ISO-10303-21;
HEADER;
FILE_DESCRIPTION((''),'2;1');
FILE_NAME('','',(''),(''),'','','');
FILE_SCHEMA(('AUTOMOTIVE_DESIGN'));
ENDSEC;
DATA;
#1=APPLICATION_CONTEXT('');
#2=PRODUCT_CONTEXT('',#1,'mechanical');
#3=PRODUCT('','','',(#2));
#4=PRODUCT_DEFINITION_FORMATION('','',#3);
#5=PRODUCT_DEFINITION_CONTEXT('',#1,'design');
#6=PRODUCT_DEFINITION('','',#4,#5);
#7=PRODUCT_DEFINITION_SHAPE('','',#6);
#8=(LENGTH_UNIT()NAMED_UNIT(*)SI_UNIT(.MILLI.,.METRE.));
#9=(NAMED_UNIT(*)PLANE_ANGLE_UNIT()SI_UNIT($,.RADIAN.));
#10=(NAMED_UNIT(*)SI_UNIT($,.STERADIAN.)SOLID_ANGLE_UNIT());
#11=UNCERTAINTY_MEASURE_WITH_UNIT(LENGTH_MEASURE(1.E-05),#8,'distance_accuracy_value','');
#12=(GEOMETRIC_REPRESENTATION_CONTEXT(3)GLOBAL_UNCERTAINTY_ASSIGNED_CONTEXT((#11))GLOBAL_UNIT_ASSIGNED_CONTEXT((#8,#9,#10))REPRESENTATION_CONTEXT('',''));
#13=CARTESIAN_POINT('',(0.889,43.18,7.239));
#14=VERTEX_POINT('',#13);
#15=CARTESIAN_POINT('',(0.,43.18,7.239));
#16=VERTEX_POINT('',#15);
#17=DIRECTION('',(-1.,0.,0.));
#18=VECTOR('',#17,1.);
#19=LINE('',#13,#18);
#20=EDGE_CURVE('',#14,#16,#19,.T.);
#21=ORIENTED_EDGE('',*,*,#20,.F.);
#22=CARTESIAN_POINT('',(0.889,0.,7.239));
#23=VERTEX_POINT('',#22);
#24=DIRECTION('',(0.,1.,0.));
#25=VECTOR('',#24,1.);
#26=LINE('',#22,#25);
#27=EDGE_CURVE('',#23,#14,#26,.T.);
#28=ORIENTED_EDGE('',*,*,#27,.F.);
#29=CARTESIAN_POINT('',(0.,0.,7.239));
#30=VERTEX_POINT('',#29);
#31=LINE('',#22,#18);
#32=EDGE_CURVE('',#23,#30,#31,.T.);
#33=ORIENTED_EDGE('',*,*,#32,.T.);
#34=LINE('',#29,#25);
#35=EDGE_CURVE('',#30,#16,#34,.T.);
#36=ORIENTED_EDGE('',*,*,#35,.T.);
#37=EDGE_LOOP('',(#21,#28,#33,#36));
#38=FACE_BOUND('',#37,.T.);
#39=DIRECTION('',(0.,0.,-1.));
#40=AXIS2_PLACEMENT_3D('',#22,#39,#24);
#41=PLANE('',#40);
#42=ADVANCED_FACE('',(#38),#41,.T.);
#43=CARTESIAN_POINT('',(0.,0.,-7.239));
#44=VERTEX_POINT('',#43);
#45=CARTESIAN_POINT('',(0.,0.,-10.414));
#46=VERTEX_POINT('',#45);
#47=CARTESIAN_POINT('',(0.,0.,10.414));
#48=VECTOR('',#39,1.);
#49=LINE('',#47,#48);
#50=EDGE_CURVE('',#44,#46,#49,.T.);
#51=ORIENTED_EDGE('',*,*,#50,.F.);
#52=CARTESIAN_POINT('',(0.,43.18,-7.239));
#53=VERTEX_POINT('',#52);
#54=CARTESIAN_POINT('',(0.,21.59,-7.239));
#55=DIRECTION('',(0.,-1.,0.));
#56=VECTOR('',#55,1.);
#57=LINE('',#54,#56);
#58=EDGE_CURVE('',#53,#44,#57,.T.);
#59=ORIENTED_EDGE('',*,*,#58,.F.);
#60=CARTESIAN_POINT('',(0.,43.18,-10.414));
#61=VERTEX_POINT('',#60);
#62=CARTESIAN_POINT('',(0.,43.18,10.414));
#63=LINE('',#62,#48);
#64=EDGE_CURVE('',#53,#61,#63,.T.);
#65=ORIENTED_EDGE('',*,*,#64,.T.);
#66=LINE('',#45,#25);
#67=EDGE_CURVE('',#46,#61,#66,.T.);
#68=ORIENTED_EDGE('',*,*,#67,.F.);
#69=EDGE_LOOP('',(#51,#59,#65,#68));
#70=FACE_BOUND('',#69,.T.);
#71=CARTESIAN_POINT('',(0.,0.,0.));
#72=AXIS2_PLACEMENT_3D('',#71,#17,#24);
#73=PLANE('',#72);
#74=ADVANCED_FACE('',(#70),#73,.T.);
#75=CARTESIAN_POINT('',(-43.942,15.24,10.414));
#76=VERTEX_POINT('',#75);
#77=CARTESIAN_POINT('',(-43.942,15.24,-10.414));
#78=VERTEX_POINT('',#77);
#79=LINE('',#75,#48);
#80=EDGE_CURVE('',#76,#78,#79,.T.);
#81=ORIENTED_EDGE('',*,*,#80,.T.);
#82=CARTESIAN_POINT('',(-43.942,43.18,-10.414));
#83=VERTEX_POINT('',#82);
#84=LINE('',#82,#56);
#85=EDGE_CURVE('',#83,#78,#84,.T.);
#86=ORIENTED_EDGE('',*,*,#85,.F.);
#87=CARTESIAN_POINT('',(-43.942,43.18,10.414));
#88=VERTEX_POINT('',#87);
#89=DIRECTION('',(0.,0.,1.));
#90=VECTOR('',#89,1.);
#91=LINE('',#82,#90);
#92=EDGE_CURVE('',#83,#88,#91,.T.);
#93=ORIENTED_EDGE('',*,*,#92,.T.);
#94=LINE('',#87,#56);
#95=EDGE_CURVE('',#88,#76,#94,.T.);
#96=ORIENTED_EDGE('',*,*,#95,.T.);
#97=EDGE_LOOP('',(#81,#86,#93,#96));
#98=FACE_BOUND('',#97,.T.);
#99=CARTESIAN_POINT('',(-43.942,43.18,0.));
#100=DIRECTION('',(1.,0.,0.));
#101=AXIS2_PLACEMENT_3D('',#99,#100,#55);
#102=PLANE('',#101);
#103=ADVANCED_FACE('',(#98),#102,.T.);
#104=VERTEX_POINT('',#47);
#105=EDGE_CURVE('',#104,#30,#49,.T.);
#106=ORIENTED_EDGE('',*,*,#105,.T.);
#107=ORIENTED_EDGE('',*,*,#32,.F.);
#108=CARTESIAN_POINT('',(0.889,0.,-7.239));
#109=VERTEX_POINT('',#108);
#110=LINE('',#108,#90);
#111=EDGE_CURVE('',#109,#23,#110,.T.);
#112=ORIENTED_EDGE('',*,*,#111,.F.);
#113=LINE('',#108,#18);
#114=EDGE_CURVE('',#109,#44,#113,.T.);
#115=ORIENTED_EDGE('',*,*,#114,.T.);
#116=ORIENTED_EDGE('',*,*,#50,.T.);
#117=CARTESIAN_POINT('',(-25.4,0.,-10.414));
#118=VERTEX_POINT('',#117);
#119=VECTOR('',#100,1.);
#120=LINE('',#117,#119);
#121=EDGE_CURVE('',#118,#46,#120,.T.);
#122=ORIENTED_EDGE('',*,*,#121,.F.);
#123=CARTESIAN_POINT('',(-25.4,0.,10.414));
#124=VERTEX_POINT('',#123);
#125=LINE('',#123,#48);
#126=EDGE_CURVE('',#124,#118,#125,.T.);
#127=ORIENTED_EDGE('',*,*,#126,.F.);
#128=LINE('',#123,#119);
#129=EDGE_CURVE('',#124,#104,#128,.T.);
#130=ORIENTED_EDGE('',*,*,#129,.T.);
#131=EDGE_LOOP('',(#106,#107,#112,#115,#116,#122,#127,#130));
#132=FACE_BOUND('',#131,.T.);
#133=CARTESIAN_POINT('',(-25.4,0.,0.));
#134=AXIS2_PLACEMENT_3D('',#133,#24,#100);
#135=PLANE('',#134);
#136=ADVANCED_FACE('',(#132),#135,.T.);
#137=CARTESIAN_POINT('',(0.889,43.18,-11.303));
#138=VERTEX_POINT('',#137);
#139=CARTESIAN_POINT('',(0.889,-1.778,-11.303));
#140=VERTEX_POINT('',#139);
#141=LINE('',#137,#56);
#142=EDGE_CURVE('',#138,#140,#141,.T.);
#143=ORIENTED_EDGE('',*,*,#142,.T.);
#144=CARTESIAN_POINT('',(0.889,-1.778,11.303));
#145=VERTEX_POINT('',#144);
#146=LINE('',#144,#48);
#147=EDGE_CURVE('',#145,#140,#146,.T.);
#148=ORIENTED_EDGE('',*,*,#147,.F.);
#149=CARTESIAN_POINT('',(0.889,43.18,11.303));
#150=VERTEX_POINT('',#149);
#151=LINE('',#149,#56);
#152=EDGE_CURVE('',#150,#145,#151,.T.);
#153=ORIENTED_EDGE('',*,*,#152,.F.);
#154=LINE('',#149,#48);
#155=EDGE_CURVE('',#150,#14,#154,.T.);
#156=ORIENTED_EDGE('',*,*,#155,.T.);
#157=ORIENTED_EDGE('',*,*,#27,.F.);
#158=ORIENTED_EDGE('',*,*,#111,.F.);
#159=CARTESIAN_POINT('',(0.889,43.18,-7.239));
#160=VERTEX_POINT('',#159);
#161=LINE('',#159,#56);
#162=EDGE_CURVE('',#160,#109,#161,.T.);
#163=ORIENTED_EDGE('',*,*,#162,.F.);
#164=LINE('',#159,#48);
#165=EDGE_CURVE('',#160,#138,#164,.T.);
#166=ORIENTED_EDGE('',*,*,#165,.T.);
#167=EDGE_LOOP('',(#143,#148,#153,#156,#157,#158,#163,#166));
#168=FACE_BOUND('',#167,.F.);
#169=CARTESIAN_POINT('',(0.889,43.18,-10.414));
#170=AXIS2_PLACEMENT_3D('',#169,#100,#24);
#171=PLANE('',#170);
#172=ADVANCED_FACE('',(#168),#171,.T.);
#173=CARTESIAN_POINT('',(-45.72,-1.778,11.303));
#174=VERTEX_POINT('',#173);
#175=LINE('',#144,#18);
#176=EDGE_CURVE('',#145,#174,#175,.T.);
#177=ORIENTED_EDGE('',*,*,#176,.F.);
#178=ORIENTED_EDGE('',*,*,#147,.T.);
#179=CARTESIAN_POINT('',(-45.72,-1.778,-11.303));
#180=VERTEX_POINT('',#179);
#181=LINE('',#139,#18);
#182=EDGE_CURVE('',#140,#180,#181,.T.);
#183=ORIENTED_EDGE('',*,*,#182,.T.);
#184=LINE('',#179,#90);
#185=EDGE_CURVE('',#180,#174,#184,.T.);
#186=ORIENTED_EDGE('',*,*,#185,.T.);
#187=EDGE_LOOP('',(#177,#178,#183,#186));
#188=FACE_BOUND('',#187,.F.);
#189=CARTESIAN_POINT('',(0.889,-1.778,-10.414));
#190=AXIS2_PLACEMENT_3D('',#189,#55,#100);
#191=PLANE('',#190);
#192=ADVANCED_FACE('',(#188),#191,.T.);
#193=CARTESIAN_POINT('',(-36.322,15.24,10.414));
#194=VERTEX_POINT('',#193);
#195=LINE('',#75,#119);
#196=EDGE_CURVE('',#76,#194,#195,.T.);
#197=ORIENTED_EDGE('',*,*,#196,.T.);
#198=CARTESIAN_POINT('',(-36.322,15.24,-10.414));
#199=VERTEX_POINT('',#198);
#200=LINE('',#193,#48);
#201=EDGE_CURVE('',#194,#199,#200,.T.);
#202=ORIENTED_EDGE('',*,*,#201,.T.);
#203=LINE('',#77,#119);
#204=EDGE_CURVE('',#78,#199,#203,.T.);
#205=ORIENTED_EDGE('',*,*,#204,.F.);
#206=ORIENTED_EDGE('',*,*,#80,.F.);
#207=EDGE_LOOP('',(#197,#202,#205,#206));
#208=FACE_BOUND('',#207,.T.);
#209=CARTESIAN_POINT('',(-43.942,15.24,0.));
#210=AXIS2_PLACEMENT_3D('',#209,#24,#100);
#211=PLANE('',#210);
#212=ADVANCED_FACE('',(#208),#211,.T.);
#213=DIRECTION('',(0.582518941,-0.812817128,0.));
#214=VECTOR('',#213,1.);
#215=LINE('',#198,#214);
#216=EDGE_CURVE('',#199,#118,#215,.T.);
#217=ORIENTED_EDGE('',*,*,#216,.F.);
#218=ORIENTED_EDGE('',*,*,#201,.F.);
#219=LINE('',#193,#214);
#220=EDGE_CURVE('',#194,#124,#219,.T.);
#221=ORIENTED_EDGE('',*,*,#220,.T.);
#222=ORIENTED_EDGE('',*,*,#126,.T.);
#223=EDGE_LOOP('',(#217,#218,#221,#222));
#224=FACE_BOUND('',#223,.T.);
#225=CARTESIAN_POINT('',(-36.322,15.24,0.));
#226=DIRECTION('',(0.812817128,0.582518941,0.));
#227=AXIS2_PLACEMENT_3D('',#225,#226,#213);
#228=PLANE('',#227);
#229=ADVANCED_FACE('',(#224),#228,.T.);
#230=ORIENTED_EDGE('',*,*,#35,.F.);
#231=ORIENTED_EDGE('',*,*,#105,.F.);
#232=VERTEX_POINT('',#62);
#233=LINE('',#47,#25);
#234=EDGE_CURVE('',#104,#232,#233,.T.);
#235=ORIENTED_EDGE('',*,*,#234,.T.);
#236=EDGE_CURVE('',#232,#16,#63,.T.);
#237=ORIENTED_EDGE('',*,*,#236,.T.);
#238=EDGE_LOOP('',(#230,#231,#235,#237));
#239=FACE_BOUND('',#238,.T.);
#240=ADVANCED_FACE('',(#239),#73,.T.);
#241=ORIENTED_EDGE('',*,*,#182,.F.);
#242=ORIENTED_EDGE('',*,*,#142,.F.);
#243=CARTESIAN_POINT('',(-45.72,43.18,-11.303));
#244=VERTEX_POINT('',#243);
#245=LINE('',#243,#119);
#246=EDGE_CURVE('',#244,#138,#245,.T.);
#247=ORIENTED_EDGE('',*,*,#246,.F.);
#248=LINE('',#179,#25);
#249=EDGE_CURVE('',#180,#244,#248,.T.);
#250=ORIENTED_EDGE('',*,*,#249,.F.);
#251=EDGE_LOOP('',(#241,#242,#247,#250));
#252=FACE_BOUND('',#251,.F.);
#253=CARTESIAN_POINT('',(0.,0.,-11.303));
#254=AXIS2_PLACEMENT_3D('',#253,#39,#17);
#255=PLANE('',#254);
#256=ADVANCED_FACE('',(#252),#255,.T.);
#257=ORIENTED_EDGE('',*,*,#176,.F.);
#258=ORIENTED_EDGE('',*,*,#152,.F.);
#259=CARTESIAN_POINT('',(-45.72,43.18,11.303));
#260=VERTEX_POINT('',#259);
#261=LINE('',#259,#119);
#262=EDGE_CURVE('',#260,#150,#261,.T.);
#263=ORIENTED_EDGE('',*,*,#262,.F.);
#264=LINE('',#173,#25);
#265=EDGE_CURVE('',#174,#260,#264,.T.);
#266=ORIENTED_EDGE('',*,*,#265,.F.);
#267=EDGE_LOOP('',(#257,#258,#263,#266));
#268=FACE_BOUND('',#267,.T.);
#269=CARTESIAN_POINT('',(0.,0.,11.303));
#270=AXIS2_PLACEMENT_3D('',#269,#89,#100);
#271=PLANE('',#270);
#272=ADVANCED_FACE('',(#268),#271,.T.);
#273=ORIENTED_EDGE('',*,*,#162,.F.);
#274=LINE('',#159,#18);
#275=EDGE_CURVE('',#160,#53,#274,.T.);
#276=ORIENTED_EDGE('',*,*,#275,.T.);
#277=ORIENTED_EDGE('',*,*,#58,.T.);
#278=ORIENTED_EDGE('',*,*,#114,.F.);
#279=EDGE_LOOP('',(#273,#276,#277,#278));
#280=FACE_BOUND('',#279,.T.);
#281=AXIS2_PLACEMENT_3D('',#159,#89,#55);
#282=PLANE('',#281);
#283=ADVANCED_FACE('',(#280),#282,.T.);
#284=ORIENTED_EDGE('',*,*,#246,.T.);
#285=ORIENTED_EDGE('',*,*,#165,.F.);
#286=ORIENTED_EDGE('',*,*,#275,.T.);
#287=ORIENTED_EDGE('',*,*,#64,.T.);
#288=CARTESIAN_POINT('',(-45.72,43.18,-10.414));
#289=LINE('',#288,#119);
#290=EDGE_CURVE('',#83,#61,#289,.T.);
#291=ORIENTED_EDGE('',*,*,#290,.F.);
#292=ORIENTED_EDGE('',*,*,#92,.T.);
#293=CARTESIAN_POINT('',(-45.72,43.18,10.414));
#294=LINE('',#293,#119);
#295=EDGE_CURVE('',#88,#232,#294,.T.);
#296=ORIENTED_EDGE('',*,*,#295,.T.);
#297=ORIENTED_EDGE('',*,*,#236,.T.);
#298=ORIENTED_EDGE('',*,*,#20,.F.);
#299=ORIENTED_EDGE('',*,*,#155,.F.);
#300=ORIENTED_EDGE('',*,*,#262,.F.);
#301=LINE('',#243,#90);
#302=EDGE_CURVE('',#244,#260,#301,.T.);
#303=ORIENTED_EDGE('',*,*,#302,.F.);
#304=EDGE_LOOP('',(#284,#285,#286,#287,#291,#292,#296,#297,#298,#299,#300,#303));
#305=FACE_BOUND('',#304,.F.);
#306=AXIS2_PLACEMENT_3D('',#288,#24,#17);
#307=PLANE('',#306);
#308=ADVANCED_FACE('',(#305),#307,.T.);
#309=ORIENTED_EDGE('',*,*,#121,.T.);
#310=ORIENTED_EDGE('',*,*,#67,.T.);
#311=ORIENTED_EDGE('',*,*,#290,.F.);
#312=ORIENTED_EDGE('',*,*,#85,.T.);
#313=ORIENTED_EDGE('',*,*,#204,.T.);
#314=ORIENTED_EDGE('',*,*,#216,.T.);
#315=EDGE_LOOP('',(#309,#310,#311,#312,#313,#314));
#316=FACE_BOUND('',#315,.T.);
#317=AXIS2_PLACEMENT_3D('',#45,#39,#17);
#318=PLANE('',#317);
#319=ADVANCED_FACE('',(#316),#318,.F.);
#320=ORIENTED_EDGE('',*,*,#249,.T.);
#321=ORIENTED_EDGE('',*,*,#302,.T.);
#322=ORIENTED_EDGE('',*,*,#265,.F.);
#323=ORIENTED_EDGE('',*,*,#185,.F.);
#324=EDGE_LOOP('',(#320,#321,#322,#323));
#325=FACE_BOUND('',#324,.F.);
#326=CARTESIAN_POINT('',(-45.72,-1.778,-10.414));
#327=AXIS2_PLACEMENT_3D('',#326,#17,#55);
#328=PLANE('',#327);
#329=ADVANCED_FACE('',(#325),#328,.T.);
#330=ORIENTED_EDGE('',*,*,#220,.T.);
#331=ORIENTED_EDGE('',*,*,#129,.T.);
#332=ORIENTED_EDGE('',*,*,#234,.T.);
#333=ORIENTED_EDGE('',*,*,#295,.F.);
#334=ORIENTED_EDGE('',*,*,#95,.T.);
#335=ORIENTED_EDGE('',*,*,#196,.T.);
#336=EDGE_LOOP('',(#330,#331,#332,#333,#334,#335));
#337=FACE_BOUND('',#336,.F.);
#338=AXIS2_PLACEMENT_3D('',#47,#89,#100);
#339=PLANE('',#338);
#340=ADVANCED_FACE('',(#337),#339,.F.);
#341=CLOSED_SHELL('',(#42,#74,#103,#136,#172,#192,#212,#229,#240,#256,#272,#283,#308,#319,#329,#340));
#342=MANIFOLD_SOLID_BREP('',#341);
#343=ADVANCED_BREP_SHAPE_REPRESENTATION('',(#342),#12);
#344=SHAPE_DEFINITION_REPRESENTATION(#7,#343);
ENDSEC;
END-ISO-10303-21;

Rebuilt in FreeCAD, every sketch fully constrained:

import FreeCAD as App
import Part
import Sketcher

V = App.Vector
Q = App.Units.Quantity

doc = App.newDocument("Part")
params = doc.addObject("Spreadsheet::Sheet", "Params")
for row, (alias, value) in enumerate([
    ("sketch1_width", "0.3 in"),
    ("sketch1_height", "1.1 in"),
    ("sketch1_height2", "1.7 in"),
    ("sketch1_width2", "0.07 in"),
    ("sketch1_height3", "1.77 in"),
    ("pad1_length", "0.82 in"),
    ("sketch2_height", "0.57 in"),
    ("sketch2_width", "1.7 in"),
    ("sketch3_height", "1.77 in"),
    ("sketch3_width", "1.835 in"),
    ("pad2_length", "0.035 in"),
], start=1):
    params.set(f"A{row}", alias)
    params.set(f"B{row}", "=" + value)
    params.setAlias(f"B{row}", alias)

body = doc.addObject("PartDesign::Body", "Body")

# Sketch on XY plane
sketch1 = body.newObject("Sketcher::SketchObject", "Sketch")
sketch1.AttachmentSupport = (doc.getObject("XY_Plane"), [""])
sketch1.MapMode = "FlatFace"
sketch1.addGeometry([
    Part.LineSegment(V(-43.942, 15.24, 0), V(-43.942, 43.18, 0)),  # 0
    Part.LineSegment(V(-43.942, 43.18, 0), V(-45.72, 43.18, 0)),  # 1
    Part.LineSegment(V(-45.72, 43.18, 0), V(-45.72, -1.778, 0)),  # 2
    Part.LineSegment(V(-45.72, -1.778, 0), V(0.889, -1.778, 0)),  # 3
    Part.LineSegment(V(0.889, -1.778, 0), V(0.889, 43.18, 0)),  # 4
    Part.LineSegment(V(0.889, 43.18, 0), V(0, 43.18, 0)),  # 5
    Part.LineSegment(V(0, 43.18, 0), V(0, 0, 0)),  # 6
    Part.LineSegment(V(0, 0, 0), V(-25.4, 0, 0)),  # 7
    Part.LineSegment(V(-25.4, 0, 0), V(-36.322, 15.24, 0)),  # 8
    Part.LineSegment(V(-36.322, 15.24, 0), V(-43.942, 15.24, 0)),  # 9
], False)
sketch1.addConstraint([
    Sketcher.Constraint("Coincident", 0, 2, 1, 1),
    Sketcher.Constraint("Coincident", 1, 2, 2, 1),
    Sketcher.Constraint("Coincident", 2, 2, 3, 1),
    Sketcher.Constraint("Coincident", 3, 2, 4, 1),
    Sketcher.Constraint("Coincident", 4, 2, 5, 1),
    Sketcher.Constraint("Coincident", 5, 2, 6, 1),
    Sketcher.Constraint("Coincident", 6, 2, 7, 1),
    Sketcher.Constraint("Coincident", 7, 2, 8, 1),
    Sketcher.Constraint("Coincident", 8, 2, 9, 1),
    Sketcher.Constraint("Coincident", 9, 2, 0, 1),
    Sketcher.Constraint("Vertical", 0),
    Sketcher.Constraint("Horizontal", 1),
    Sketcher.Constraint("Vertical", 2),
    Sketcher.Constraint("Horizontal", 3),
    Sketcher.Constraint("Vertical", 4),
    Sketcher.Constraint("Horizontal", 5),
    Sketcher.Constraint("Vertical", 6),
    Sketcher.Constraint("Horizontal", 7),
    Sketcher.Constraint("Horizontal", 9),
    Sketcher.Constraint("Coincident", 6, 2, -1, 1),
    Sketcher.Constraint("Horizontal", 1, 2, 4, 2),
    Sketcher.Constraint("DistanceX", 9, 2, 9, 1, Q("0.3 in")),
    Sketcher.Constraint("DistanceY", 0, 1, 0, 2, Q("1.1 in")),
    Sketcher.Constraint("DistanceY", 6, 2, 6, 1, Q("1.7 in")),
    Sketcher.Constraint("DistanceX", 1, 2, 1, 1, Q("0.07 in")),
    Sketcher.Constraint("DistanceY", 2, 2, 2, 1, Q("1.77 in")),
    Sketcher.Constraint("DistanceX", 3, 1, 3, 2, Q("1.835 in")),
    Sketcher.Constraint("DistanceX", 5, 2, 5, 1, Q("0.035 in")),
    Sketcher.Constraint("DistanceX", 7, 2, 7, 1, Q("1 in")),
])
sketch1.setExpression("Constraints[21]", "Params.sketch1_width")
sketch1.setExpression("Constraints[22]", "Params.sketch1_height")
sketch1.setExpression("Constraints[23]", "Params.sketch1_height2")
sketch1.setExpression("Constraints[24]", "Params.sketch1_width2")
sketch1.setExpression("Constraints[25]", "Params.sketch1_height3")
pad1 = body.newObject("PartDesign::Pad", "Pad")
pad1.Profile = sketch1
pad1.setExpression("Length", "Params.pad1_length")
pad1.Midplane = True

# Sketch on YZ plane
sketch2 = body.newObject("Sketcher::SketchObject", "Sketch001")
sketch2.AttachmentSupport = (doc.getObject("YZ_Plane"), [""])
sketch2.MapMode = "FlatFace"
sketch2.AttachmentOffset = App.Placement(V(0, 0, 0.035 * 25.4), App.Rotation())
sketch2.addGeometry([
    Part.LineSegment(V(43.18, -7.239, 0), V(43.18, 7.239, 0)),
    Part.LineSegment(V(43.18, 7.239, 0), V(0, 7.239, 0)),
    Part.LineSegment(V(0, 7.239, 0), V(0, -7.239, 0)),
    Part.LineSegment(V(0, -7.239, 0), V(43.18, -7.239, 0)),
], False)
sketch2.addConstraint([
    Sketcher.Constraint("Coincident", 0, 2, 1, 1),
    Sketcher.Constraint("Coincident", 1, 2, 2, 1),
    Sketcher.Constraint("Coincident", 2, 2, 3, 1),
    Sketcher.Constraint("Coincident", 3, 2, 0, 1),
    Sketcher.Constraint("Vertical", 0),
    Sketcher.Constraint("Horizontal", 1),
    Sketcher.Constraint("Vertical", 2),
    Sketcher.Constraint("Horizontal", 3),
    Sketcher.Constraint("Symmetric", 1, 2, 2, 2, -1, 1),
    Sketcher.Constraint("DistanceY", 0, 1, 0, 2, Q("0.57 in")),
    Sketcher.Constraint("DistanceX", 1, 2, 1, 1, Q("1.7 in")),
])
sketch2.setExpression("Constraints[9]", "Params.sketch2_height")
sketch2.setExpression("Constraints[10]", "Params.sketch2_width")
pocket1 = body.newObject("PartDesign::Pocket", "Pocket")
pocket1.Profile = sketch2
pocket1.Type = "UpToFirst"

# Sketch on XY plane
sketch3 = body.newObject("Sketcher::SketchObject", "Sketch002")
sketch3.AttachmentSupport = (doc.getObject("XY_Plane"), [""])
sketch3.MapMode = "FlatFace"
sketch3.AttachmentOffset = App.Placement(V(0, 0, 0.41 * 25.4), App.Rotation())
sketch3.addGeometry([
    Part.LineSegment(V(0.889, 43.18, 0), V(-45.72, 43.18, 0)),
    Part.LineSegment(V(-45.72, 43.18, 0), V(-45.72, -1.778, 0)),
    Part.LineSegment(V(-45.72, -1.778, 0), V(0.889, -1.778, 0)),
    Part.LineSegment(V(0.889, -1.778, 0), V(0.889, 43.18, 0)),
], False)
sketch3.addConstraint([
    Sketcher.Constraint("Coincident", 0, 2, 1, 1),
    Sketcher.Constraint("Coincident", 1, 2, 2, 1),
    Sketcher.Constraint("Coincident", 2, 2, 3, 1),
    Sketcher.Constraint("Coincident", 3, 2, 0, 1),
    Sketcher.Constraint("Horizontal", 0),
    Sketcher.Constraint("Vertical", 1),
    Sketcher.Constraint("Horizontal", 2),
    Sketcher.Constraint("Vertical", 3),
    Sketcher.Constraint("DistanceY", 1, 2, 1, 1, Q("1.77 in")),
    Sketcher.Constraint("DistanceX", 0, 2, -1, 1, Q("1.8 in")),
    Sketcher.Constraint("DistanceY", -1, 1, 0, 2, Q("1.7 in")),
    Sketcher.Constraint("DistanceX", 0, 2, 0, 1, Q("1.835 in")),
])
sketch3.setExpression("Constraints[8]", "Params.sketch3_height")
sketch3.setExpression("Constraints[11]", "Params.sketch3_width")
pad2 = body.newObject("PartDesign::Pad", "Pad001")
pad2.Profile = sketch3
pad2.setExpression("Length", "Params.pad2_length")
doc.recompute()

mirrored = body.newObject("PartDesign::Mirrored", "Mirrored")
mirrored.Originals = [pad2]
mirrored.MirrorPlane = (doc.getObject("XY_Plane"), [""])
body.Tip = mirrored

doc.recompute()
